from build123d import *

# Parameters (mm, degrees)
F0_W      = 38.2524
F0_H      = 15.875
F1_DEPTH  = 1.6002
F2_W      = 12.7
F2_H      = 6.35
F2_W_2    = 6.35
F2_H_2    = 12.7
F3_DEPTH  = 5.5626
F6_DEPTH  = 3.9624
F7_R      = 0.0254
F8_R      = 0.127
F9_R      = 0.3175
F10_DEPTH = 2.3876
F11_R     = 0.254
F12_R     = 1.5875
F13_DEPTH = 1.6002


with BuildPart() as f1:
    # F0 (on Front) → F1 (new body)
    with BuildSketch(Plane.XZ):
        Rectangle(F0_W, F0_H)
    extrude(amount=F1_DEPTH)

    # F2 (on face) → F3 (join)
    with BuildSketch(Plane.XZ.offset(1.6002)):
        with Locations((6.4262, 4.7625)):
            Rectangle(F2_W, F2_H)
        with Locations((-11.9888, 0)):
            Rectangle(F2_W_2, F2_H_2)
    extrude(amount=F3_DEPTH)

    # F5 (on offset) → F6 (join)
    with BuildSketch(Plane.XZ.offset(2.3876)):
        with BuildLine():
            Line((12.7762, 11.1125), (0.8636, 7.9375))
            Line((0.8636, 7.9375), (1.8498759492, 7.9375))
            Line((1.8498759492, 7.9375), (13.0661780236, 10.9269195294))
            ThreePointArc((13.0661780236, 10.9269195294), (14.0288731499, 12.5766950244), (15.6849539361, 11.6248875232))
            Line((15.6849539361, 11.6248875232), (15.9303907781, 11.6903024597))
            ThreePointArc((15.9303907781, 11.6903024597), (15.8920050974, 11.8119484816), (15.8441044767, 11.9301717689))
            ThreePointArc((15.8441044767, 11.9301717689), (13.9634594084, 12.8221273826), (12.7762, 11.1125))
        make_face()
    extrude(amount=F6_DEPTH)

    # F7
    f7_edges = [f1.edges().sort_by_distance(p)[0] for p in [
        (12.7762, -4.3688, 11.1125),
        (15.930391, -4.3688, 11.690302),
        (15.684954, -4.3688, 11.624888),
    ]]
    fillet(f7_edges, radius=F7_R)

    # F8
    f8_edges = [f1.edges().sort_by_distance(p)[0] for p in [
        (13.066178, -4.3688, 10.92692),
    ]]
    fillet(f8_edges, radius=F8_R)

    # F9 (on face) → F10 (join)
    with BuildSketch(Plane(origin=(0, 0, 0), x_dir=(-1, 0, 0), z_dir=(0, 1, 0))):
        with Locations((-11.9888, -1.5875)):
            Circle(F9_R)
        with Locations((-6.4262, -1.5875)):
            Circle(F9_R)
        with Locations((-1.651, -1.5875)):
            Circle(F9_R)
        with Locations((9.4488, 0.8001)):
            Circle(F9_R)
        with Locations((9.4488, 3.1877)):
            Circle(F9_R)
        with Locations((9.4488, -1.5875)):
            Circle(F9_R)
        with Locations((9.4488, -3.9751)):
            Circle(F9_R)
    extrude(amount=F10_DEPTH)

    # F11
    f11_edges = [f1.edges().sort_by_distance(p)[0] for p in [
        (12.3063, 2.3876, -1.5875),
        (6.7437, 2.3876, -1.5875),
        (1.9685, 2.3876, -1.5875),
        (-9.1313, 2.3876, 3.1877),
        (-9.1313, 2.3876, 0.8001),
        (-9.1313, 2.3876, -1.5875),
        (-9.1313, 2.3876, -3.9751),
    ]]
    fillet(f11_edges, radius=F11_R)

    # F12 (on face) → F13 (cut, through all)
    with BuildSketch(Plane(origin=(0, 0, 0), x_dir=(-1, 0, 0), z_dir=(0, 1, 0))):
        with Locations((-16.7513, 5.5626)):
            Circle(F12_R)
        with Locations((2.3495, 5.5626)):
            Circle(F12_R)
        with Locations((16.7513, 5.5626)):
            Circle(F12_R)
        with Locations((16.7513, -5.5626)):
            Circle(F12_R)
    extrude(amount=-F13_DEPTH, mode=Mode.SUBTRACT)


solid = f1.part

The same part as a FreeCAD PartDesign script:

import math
import FreeCAD as App
import Part
import Sketcher
Q = App.Units.Quantity


def edges_at(feature, points):
    """Names of the edges that pass closest to the given points."""
    edges = feature.Shape.Edges
    near = lambda p: min(range(len(edges)), key=lambda i: edges[i].distToShape(Part.Vertex(*p))[0])
    return sorted({f"Edge{near(p) + 1}" for p in points})

doc = App.newDocument("Part")
body = doc.addObject("PartDesign::Body", "Body")

# Sketch on XZ plane
sketch1 = body.newObject("Sketcher::SketchObject", "Sketch")
sketch1.AttachmentSupport = (doc.getObject("XZ_Plane"), [""])
sketch1.MapMode = "FlatFace"
sketch1.addGeometry([
    Part.LineSegment(App.Vector(-19, 8, 0), App.Vector(-19, -8, 0)),
    Part.LineSegment(App.Vector(-19, -8, 0), App.Vector(19, -8, 0)),
    Part.LineSegment(App.Vector(19, -8, 0), App.Vector(19, 8, 0)),
    Part.LineSegment(App.Vector(19, 8, 0), App.Vector(-19, 8, 0)),
], False)
sketch1.addConstraint([
    Sketcher.Constraint("Coincident", 0, 2, 1, 1),
    Sketcher.Constraint("Coincident", 1, 2, 2, 1),
    Sketcher.Constraint("Coincident", 2, 2, 3, 1),
    Sketcher.Constraint("Coincident", 3, 2, 0, 1),
    Sketcher.Constraint("Vertical", 0),
    Sketcher.Constraint("Horizontal", 1),
    Sketcher.Constraint("Vertical", 2),
    Sketcher.Constraint("Horizontal", 3),
    Sketcher.Constraint("Symmetric", 0, 2, 2, 2, -1, 1),
    Sketcher.Constraint("DistanceX", 1, 1, 1, 2, Q("1.506 in")),
    Sketcher.Constraint("DistanceY", 0, 2, 0, 1, Q("0.625 in")),
])
pad1 = body.newObject("PartDesign::Pad", "Pad")
pad1.Profile = sketch1
pad1.Length = Q("0.063 in")

# Sketch on XZ plane
sketch2 = body.newObject("Sketcher::SketchObject", "Sketch001")
sketch2.AttachmentSupport = (doc.getObject("XZ_Plane"), [""])
sketch2.MapMode = "FlatFace"
sketch2.AttachmentOffset = App.Placement(App.Vector(0, 0, 0.063 * 25.4), App.Rotation())
sketch2.addGeometry([
    Part.LineSegment(App.Vector(0, 8, 0), App.Vector(0, 2, 0)),  # 0
    Part.LineSegment(App.Vector(0, 2, 0), App.Vector(13, 2, 0)),  # 1
    Part.LineSegment(App.Vector(13, 2, 0), App.Vector(13, 8, 0)),  # 2
    Part.LineSegment(App.Vector(13, 8, 0), App.Vector(0, 8, 0)),  # 3
    Part.LineSegment(App.Vector(-15, 6, 0), App.Vector(-15, -6, 0)),  # 4
    Part.LineSegment(App.Vector(-15, -6, 0), App.Vector(-9, -6, 0)),  # 5
    Part.LineSegment(App.Vector(-9, -6, 0), App.Vector(-9, 6, 0)),  # 6
    Part.LineSegment(App.Vector(-9, 6, 0), App.Vector(-15, 6, 0)),  # 7
], False)
sketch2.addConstraint([
    Sketcher.Constraint("Coincident", 0, 2, 1, 1),
    Sketcher.Constraint("Coincident", 1, 2, 2, 1),
    Sketcher.Constraint("Coincident", 2, 2, 3, 1),
    Sketcher.Constraint("Coincident", 3, 2, 0, 1),
    Sketcher.Constraint("Coincident", 4, 2, 5, 1),
    Sketcher.Constraint("Coincident", 5, 2, 6, 1),
    Sketcher.Constraint("Coincident", 6, 2, 7, 1),
    Sketcher.Constraint("Coincident", 7, 2, 4, 1),
    Sketcher.Constraint("Vertical", 0),
    Sketcher.Constraint("Horizontal", 1),
    Sketcher.Constraint("Vertical", 2),
    Sketcher.Constraint("Horizontal", 3),
    Sketcher.Constraint("Vertical", 4),
    Sketcher.Constraint("Horizontal", 5),
    Sketcher.Constraint("Vertical", 6),
    Sketcher.Constraint("Horizontal", 7),
    Sketcher.Constraint("Equal", 7, 0),
    Sketcher.Constraint("Equal", 3, 4),
    Sketcher.Constraint("DistanceX", 1, 1, 1, 2, Q("0.5 in")),
    Sketcher.Constraint("DistanceX", 5, 1, 5, 2, Q("0.25 in")),
    Sketcher.Constraint("DistanceX", 4, 2, 0, 2, Q("0.6 in")),
    Sketcher.Constraint("DistanceY", 4, 2, -1, 1, Q("0.25 in")),
    Sketcher.Constraint("DistanceX", -1, 1, 0, 2, Q("0.003 in")),
    Sketcher.Constraint("DistanceY", -1, 1, 0, 2, Q("0.0625 in")),
])
pad2 = body.newObject("PartDesign::Pad", "Pad001")
pad2.Profile = sketch2
pad2.Length = Q("0.219 in")

# Sketch on XZ plane
sketch3 = body.newObject("Sketcher::SketchObject", "Sketch002")
sketch3.AttachmentSupport = (doc.getObject("XZ_Plane"), [""])
sketch3.MapMode = "FlatFace"
sketch3.AttachmentOffset = App.Placement(App.Vector(0, 0, 0.094 * 25.4), App.Rotation())
sketch3.addGeometry([
    Part.LineSegment(App.Vector(12.78, 11.11, 0), App.Vector(0.86, 7.94, 0)),  # 0
    Part.LineSegment(App.Vector(0.86, 7.94, 0), App.Vector(1.85, 7.94, 0)),  # 1
    Part.LineSegment(App.Vector(1.85, 7.94, 0), App.Vector(13.07, 10.93, 0)),  # 2
    Part.ArcOfCircle(Part.Circle(App.Vector(14.38, 11.27, 0), App.Vector(0, 0, 1), 1.36), math.radians(15), math.radians(195)),  # 3
    Part.LineSegment(App.Vector(15.68, 11.62, 0), App.Vector(15.93, 11.69, 0)),  # 4
    Part.ArcOfCircle(Part.Circle(App.Vector(14.38, 11.27, 0), App.Vector(0, 0, 1), 1.61), math.radians(15.24), math.radians(24.33)),  # 5
    Part.ArcOfCircle(Part.Circle(App.Vector(14.38, 11.27, 0), App.Vector(0, 0, 1), 1.61), math.radians(24), math.radians(186)),  # 6
], False)
sketch3.addConstraint([
    Sketcher.Constraint("Coincident", 0, 2, 1, 1),
    Sketcher.Constraint("Coincident", 1, 2, 2, 1),
    Sketcher.Constraint("Coincident", 2, 2, 3, 2),
    Sketcher.Constraint("Coincident", 3, 1, 4, 1),
    Sketcher.Constraint("Coincident", 4, 2, 5, 1),
    Sketcher.Constraint("Tangent", 5, 2, 6, 1),
    Sketcher.Constraint("Coincident", 6, 2, 0, 1),
    Sketcher.Constraint("Horizontal", 1),
    Sketcher.Constraint("Coincident", 5, 3, 3, 3),
    Sketcher.Constraint("Equal", 5, 6),
    Sketcher.Constraint("Parallel", 0, 2),
    Sketcher.Constraint("Parallel", 2, 4),
    Sketcher.Constraint("Distance", 4, Q("0.0100002 in")),
    Sketcher.Constraint("DistanceX", -1, 1, 0, 2, Q("0.034 in")),
    Sketcher.Constraint("DistanceY", -1, 1, 0, 2, Q("0.3125 in")),
    Sketcher.Constraint("DistanceX", -1, 1, 6, 2, Q("0.503 in")),
    Sketcher.Constraint("DistanceY", -1, 1, 6, 2, Q("0.4375 in")),
    Sketcher.Constraint("Radius", 3, 1.355126),
    Sketcher.Constraint("DistanceY", 2, 2, 5, 3, Q("0.0134 in")),
    Sketcher.Constraint("DistanceX", 1, 1, 1, 2, 0.986276),
    Sketcher.Constraint("DistanceX", -1, 1, 4, 2, 15.930391),
    Sketcher.Constraint("DistanceY", -1, 1, 5, 2, 11.930172),
])
pad3 = body.newObject("PartDesign::Pad", "Pad002")
pad3.Profile = sketch3
pad3.Length = Q("0.156 in")
doc.recompute()

fillet = body.newObject("PartDesign::Fillet", "Fillet")
fillet.Base = (pad3, edges_at(pad3, [(12.776, -4.369, 11.113), (15.93, -4.369, 11.69), (15.685, -4.369, 11.625)]))
fillet.Radius = Q("0.001 in")
doc.recompute()

fillet2 = body.newObject("PartDesign::Fillet", "Fillet001")
fillet2.Base = (fillet, edges_at(fillet, [(13.066, -4.369, 10.927)]))
fillet2.Radius = Q("0.005 in")

# Sketch on XZ plane
sketch4 = body.newObject("Sketcher::SketchObject", "Sketch003")
sketch4.AttachmentSupport = (doc.getObject("XZ_Plane"), [""])
sketch4.MapMode = "FlatFace"
sketch4.addGeometry([
    Part.Circle(App.Vector(11.99, -1.59, 0), App.Vector(0, 0, 1), 0.32),  # 0
    Part.Circle(App.Vector(6.43, -1.59, 0), App.Vector(0, 0, 1), 0.32),  # 1
    Part.Circle(App.Vector(1.65, -1.59, 0), App.Vector(0, 0, 1), 0.32),  # 2
    Part.Circle(App.Vector(-9.45, 0.8, 0), App.Vector(0, 0, 1), 0.32),  # 3
    Part.Circle(App.Vector(-9.45, 3.19, 0), App.Vector(0, 0, 1), 0.32),  # 4
    Part.Circle(App.Vector(-9.45, -1.59, 0), App.Vector(0, 0, 1), 0.32),  # 5
    Part.Circle(App.Vector(-9.45, -3.98, 0), App.Vector(0, 0, 1), 0.32),  # 6
], False)
sketch4.addConstraint([
    Sketcher.Constraint("Equal", 0, 1),
    Sketcher.Constraint("Equal", 1, 2),
    Sketcher.Constraint("Equal", 2, 3),
    Sketcher.Constraint("Equal", 3, 4),
    Sketcher.Constraint("Equal", 4, 5),
    Sketcher.Constraint("Equal", 5, 6),
    Sketcher.Constraint("Horizontal", 0, 3, 1, 3),
    Sketcher.Constraint("Horizontal", 1, 3, 2, 3),
    Sketcher.Constraint("Horizontal", 2, 3, 5, 3),
    Sketcher.Constraint("Vertical", 3, 3, 4, 3),
    Sketcher.Constraint("Vertical", 4, 3, 5, 3),
    Sketcher.Constraint("Vertical", 5, 3, 6, 3),
    Sketcher.Constraint("Diameter", 0, Q("0.025 in")),
    Sketcher.Constraint("DistanceX", -1, 1, 0, 3, Q("0.472 in")),
    Sketcher.Constraint("DistanceY", 0, 3, -1, 1, Q("0.0625 in")),
    Sketcher.Constraint("DistanceX", -1, 1, 1, 3, Q("0.253 in")),
    Sketcher.Constraint("DistanceX", -1, 1, 2, 3, Q("0.065 in")),
    Sketcher.Constraint("DistanceX", 3, 3, -1, 1, Q("0.372 in")),
    Sketcher.Constraint("DistanceY", 2, 3, 3, 3, Q("0.094 in")),
    Sketcher.Constraint("DistanceY", 3, 3, 4, 3, Q("0.094 in")),
    Sketcher.Constraint("DistanceY", 6, 3, 5, 3, Q("0.094 in")),
])
pad4 = body.newObject("PartDesign::Pad", "Pad003")
pad4.Profile = sketch4
pad4.Length = Q("0.094 in")
pad4.Reversed = True
doc.recompute()

fillet3 = body.newObject("PartDesign::Fillet", "Fillet002")
fillet3.Base = (pad4, edges_at(pad4, [
    (12.306, 2.388, -1.587),
    (6.744, 2.388, -1.587),
    (1.968, 2.388, -1.587),
    (-9.131, 2.388, 3.188),
    (-9.131, 2.388, 0.8),
    (-9.131, 2.388, -1.587),
    (-9.131, 2.388, -3.975),
]))
fillet3.Radius = Q("0.01 in")

# Sketch on XZ plane
sketch5 = body.newObject("Sketcher::SketchObject", "Sketch004")
sketch5.AttachmentSupport = (doc.getObject("XZ_Plane"), [""])
sketch5.MapMode = "FlatFace"
sketch5.addGeometry([
    Part.Circle(App.Vector(16.8, 5.6, 0), App.Vector(0, 0, 1), 1.6),
    Part.Circle(App.Vector(-2.3, 5.6, 0), App.Vector(0, 0, 1), 1.6),
    Part.Circle(App.Vector(-16.8, 5.6, 0), App.Vector(0, 0, 1), 1.6),
    Part.Circle(App.Vector(-16.8, -5.6, 0), App.Vector(0, 0, 1), 1.6),
], False)
sketch5.addConstraint([
    Sketcher.Constraint("Equal", 0, 1),
    Sketcher.Constraint("Equal", 1, 2),
    Sketcher.Constraint("Equal", 2, 3),
    Sketcher.Constraint("Symmetric", 0, 3, 3, 3, -1, 1),
    Sketcher.Constraint("Symmetric", 0, 3, 2, 3, -2),
    Sketcher.Constraint("Horizontal", 0, 3, 1, 3),
    Sketcher.Constraint("Diameter", 0, Q("0.125 in")),
    Sketcher.Constraint("DistanceY", -1, 1, 0, 3, Q("0.219 in")),
    Sketcher.Constraint("DistanceX", 1, 3, 0, 3, Q("0.752 in")),
    Sketcher.Constraint("DistanceX", 2, 3, 1, 3, Q("0.567 in")),
])
pocket1 = body.newObject("PartDesign::Pocket", "Pocket")
pocket1.Profile = sketch5
pocket1.Type = "ThroughAll"
pocket1.Reversed = True

doc.recompute()
